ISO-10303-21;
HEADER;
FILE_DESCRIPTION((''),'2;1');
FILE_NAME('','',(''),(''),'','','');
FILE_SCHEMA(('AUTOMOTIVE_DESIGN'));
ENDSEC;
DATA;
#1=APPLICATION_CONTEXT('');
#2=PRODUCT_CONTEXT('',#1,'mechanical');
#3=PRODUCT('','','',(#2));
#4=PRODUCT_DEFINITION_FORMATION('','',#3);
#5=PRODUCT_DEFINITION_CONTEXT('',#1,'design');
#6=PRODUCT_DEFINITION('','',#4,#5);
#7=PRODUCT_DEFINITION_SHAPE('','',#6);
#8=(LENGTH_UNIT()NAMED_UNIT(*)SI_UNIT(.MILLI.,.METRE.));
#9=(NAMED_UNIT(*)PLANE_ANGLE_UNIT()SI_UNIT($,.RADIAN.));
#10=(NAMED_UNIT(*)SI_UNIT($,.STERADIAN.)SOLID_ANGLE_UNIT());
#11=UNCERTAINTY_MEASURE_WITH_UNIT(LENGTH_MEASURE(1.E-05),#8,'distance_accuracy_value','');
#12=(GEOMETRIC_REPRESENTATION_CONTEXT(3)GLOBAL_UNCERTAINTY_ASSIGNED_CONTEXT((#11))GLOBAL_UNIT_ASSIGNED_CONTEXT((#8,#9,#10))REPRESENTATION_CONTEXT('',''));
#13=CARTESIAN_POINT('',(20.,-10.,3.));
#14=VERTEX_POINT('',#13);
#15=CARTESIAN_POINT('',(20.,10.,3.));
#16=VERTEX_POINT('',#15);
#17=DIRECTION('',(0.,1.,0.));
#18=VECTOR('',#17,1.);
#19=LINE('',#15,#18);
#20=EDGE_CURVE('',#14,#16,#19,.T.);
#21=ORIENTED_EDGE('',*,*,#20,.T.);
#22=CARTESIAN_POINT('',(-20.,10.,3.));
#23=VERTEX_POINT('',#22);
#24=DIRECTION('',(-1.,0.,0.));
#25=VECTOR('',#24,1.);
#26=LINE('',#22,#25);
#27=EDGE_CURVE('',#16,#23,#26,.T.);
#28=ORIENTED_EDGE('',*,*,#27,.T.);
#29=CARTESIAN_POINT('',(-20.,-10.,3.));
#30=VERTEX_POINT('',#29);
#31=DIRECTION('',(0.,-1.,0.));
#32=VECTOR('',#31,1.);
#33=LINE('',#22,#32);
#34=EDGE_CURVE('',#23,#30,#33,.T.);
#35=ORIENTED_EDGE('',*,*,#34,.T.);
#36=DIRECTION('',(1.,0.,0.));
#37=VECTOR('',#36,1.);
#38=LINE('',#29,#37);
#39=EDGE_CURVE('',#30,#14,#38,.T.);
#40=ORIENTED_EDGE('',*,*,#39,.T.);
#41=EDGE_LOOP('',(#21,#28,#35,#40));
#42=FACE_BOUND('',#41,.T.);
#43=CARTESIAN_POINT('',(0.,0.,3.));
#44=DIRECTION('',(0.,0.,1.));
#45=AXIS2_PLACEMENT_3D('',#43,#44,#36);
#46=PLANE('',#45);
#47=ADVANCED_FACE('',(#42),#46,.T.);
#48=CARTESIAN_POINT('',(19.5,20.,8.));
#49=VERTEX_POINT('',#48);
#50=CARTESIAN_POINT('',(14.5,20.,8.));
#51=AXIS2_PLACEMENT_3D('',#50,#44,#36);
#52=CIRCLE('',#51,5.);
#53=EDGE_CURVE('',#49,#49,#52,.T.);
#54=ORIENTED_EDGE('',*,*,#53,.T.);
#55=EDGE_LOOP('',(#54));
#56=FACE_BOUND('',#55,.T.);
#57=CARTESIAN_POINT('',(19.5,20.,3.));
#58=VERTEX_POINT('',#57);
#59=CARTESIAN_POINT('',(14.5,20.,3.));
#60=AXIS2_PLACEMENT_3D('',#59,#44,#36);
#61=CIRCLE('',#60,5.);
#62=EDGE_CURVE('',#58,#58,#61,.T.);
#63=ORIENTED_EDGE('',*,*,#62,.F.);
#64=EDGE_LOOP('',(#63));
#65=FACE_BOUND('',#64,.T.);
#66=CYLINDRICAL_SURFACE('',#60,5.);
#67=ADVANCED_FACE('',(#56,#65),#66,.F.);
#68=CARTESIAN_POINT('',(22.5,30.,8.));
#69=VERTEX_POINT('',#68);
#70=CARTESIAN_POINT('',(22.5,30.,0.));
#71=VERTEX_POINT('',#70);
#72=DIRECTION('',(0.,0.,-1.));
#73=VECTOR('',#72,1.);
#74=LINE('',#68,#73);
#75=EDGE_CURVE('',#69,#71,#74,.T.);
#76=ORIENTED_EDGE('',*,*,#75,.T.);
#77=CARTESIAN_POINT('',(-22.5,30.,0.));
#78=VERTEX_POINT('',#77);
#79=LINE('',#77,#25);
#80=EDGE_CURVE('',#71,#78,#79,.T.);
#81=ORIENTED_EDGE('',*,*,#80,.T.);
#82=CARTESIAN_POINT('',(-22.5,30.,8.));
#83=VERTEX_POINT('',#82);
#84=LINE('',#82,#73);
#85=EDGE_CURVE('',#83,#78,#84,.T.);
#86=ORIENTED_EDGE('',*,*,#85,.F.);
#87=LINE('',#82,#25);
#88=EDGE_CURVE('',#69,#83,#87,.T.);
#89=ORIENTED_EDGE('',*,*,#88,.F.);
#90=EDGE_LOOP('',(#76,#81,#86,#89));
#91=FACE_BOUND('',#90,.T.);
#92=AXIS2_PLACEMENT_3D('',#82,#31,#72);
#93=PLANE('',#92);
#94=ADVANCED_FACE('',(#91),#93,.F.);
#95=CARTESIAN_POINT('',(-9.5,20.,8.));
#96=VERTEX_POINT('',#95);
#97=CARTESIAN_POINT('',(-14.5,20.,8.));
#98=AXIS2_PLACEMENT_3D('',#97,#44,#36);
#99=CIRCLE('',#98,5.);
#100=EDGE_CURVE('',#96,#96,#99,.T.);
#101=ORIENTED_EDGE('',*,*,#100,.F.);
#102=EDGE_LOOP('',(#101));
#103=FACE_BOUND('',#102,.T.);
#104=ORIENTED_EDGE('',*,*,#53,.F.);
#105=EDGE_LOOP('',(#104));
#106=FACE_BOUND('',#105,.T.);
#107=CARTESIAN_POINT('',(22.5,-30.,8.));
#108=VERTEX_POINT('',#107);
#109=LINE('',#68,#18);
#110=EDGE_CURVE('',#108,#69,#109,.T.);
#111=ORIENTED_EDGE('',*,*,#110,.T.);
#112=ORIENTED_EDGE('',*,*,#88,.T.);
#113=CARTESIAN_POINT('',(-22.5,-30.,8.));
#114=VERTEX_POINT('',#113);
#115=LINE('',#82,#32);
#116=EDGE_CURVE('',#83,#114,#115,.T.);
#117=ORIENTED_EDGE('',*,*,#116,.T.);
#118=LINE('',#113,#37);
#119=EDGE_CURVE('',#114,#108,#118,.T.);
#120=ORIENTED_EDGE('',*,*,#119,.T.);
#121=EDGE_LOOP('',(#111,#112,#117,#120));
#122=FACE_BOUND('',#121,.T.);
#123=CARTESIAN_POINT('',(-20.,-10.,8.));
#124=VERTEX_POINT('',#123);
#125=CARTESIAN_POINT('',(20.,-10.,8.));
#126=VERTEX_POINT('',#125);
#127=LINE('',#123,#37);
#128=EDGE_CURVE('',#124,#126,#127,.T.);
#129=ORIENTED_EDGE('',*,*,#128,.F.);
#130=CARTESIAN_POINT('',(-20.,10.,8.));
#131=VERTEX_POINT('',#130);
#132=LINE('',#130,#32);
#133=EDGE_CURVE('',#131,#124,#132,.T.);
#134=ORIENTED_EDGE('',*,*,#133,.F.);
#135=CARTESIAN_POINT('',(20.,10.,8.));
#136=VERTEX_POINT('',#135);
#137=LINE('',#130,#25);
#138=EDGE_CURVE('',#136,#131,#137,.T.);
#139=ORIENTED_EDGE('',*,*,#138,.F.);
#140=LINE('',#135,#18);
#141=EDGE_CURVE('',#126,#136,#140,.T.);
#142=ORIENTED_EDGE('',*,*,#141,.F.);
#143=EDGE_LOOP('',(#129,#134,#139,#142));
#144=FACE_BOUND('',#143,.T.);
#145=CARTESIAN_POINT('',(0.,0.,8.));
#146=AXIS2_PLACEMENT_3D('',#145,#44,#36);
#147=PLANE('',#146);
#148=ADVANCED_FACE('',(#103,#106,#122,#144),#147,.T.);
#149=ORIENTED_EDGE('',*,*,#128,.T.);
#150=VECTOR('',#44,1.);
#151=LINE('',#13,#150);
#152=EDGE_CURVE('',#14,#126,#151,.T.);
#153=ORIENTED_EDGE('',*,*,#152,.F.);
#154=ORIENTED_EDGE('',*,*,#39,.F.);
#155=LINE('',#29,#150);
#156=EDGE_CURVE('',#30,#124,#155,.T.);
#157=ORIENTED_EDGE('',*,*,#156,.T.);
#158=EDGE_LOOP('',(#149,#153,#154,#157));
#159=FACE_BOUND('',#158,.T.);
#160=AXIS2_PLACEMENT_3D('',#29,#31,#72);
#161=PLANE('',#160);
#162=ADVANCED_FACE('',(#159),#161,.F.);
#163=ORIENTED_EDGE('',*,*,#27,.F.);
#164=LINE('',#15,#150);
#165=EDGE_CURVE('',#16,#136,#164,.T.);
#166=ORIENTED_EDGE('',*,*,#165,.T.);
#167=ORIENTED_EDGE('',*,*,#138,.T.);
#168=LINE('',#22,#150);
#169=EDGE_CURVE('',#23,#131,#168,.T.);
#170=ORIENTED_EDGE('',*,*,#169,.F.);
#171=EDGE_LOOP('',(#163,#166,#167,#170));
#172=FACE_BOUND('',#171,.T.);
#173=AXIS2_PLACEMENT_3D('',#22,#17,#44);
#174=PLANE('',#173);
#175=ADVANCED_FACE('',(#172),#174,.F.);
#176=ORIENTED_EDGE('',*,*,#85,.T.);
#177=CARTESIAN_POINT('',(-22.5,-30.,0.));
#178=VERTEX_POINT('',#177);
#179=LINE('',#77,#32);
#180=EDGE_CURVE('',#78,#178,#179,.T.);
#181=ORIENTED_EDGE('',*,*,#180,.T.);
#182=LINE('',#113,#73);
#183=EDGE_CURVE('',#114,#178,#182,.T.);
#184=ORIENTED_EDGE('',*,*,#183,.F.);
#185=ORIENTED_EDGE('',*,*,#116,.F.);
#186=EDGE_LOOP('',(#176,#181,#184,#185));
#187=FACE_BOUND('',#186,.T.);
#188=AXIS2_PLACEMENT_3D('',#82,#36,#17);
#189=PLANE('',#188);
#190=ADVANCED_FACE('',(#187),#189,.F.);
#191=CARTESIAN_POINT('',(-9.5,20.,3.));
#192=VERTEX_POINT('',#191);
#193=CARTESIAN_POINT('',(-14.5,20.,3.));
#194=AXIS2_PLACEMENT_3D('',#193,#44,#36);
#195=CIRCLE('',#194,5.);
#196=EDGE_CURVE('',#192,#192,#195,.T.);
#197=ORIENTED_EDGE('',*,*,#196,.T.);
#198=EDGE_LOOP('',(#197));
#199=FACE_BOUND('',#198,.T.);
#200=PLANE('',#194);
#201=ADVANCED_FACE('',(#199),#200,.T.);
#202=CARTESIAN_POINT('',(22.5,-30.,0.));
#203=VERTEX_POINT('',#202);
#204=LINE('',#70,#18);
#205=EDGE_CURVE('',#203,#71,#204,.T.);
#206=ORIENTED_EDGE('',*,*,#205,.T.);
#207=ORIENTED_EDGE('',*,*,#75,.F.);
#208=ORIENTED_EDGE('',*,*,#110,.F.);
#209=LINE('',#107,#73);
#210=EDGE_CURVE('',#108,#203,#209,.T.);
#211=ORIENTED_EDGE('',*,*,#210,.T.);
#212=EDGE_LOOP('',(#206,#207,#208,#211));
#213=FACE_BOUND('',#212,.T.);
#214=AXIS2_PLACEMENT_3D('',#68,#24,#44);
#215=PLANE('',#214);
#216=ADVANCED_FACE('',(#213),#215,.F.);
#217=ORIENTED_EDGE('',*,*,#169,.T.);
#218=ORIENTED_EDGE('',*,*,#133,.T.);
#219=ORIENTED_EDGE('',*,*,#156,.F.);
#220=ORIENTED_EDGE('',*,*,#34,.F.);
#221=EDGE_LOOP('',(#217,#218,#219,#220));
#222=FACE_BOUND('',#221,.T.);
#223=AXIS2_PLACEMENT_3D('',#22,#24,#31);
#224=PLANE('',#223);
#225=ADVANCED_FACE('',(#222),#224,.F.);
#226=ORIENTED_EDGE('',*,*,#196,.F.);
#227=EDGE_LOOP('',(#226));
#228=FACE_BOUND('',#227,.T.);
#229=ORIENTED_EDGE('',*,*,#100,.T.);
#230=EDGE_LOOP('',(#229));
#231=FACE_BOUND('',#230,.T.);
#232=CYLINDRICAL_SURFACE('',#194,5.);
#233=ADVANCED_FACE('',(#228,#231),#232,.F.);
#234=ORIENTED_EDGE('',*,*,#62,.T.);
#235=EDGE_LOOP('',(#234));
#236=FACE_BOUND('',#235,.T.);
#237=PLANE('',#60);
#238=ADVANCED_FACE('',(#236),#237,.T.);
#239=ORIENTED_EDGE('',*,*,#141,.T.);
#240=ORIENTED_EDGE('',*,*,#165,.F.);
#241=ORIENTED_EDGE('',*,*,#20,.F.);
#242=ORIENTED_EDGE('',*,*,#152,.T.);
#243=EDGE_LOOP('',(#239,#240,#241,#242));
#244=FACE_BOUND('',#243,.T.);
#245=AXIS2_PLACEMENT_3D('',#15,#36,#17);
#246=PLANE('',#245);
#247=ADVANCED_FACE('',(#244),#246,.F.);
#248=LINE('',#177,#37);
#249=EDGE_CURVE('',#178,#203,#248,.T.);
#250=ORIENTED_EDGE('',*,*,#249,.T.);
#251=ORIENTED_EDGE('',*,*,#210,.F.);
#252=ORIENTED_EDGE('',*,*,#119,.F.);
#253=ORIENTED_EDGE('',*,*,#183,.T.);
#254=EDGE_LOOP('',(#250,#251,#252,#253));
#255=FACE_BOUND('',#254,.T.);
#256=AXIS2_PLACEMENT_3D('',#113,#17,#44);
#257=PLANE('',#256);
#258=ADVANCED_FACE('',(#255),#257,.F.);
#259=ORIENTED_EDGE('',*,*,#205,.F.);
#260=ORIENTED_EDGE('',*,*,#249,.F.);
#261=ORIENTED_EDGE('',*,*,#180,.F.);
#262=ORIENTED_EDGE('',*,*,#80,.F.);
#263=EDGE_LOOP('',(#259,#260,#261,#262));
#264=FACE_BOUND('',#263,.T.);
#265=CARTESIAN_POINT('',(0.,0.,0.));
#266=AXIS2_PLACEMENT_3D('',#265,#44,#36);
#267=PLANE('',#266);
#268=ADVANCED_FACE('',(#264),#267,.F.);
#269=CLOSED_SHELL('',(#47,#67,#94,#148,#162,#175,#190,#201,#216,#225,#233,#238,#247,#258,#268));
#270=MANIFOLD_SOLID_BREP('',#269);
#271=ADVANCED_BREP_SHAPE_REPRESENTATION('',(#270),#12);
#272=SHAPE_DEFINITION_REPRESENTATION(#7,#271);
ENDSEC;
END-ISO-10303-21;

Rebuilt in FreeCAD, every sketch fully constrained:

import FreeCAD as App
import Part
import Sketcher
from FreeCAD import Vector

doc = App.newDocument("Part")
body = doc.addObject("PartDesign::Body", "Body")

sketch1 = body.newObject("Sketcher::SketchObject", "Sketch")
sketch1.AttachmentSupport = (doc.getObject("XY_Plane"), [""])
sketch1.MapMode = "FlatFace"
sketch1.addGeometry([
    Part.LineSegment(Vector(-22, 30, 0), Vector(-22, -30, 0)),
    Part.LineSegment(Vector(-22, -30, 0), Vector(22, -30, 0)),
    Part.LineSegment(Vector(22, -30, 0), Vector(22, 30, 0)),
    Part.LineSegment(Vector(22, 30, 0), Vector(-22, 30, 0)),
], False)
sketch1.addConstraint([
    Sketcher.Constraint("Coincident", 0, 2, 1, 1),
    Sketcher.Constraint("Coincident", 1, 2, 2, 1),
    Sketcher.Constraint("Coincident", 2, 2, 3, 1),
    Sketcher.Constraint("Coincident", 3, 2, 0, 1),
    Sketcher.Constraint("Vertical", 0),
    Sketcher.Constraint("Horizontal", 1),
    Sketcher.Constraint("Vertical", 2),
    Sketcher.Constraint("Horizontal", 3),
    Sketcher.Constraint("Symmetric", 0, 2, 2, 2, -1, 1),
    Sketcher.Constraint("DistanceX", 1, 1, 1, 2, 45.0),
    Sketcher.Constraint("DistanceY", 0, 2, 0, 1, 60.0),
])
pad1 = body.newObject("PartDesign::Pad", "Pad")
pad1.Profile = sketch1
pad1.Length = 8

sketch2 = body.newObject("Sketcher::SketchObject", "Sketch001")
sketch2.AttachmentSupport = (doc.getObject("XY_Plane"), [""])
sketch2.MapMode = "FlatFace"
sketch2.AttachmentOffset = App.Placement(Vector(0, 0, 8), App.Rotation())
sketch2.addGeometry([
    Part.Circle(Vector(-14, 20, 0), Vector(0, 0, 1), 5),
    Part.Circle(Vector(14, 20, 0), Vector(0, 0, 1), 5),
    Part.LineSegment(Vector(-20, 10, 0), Vector(-20, -10, 0)),
    Part.LineSegment(Vector(-20, -10, 0), Vector(20, -10, 0)),
    Part.LineSegment(Vector(20, -10, 0), Vector(20, 10, 0)),
    Part.LineSegment(Vector(20, 10, 0), Vector(-20, 10, 0)),
], False)
sketch2.addConstraint([
    Sketcher.Constraint("Coincident", 2, 2, 3, 1),
    Sketcher.Constraint("Coincident", 3, 2, 4, 1),
    Sketcher.Constraint("Coincident", 4, 2, 5, 1),
    Sketcher.Constraint("Coincident", 5, 2, 2, 1),
    Sketcher.Constraint("Vertical", 2),
    Sketcher.Constraint("Horizontal", 3),
    Sketcher.Constraint("Vertical", 4),
    Sketcher.Constraint("Horizontal", 5),
    Sketcher.Constraint("Equal", 0, 1),
    Sketcher.Constraint("Symmetric", 2, 2, 4, 2, -1, 1),
    Sketcher.Constraint("Symmetric", 0, 3, 1, 3, -2),
    Sketcher.Constraint("Diameter", 0, 10.0),
    Sketcher.Constraint("DistanceX", 3, 1, 3, 2, 40.0),
    Sketcher.Constraint("DistanceY", 2, 2, 2, 1, 20.0),
    Sketcher.Constraint("DistanceY", -1, 1, 0, 3, 20.0),
    Sketcher.Constraint("DistanceX", 0, 3, 1, 3, 29.0),
])
pocket1 = body.newObject("PartDesign::Pocket", "Pocket")
pocket1.Profile = sketch2
pocket1.Length = 5

doc.recompute()
